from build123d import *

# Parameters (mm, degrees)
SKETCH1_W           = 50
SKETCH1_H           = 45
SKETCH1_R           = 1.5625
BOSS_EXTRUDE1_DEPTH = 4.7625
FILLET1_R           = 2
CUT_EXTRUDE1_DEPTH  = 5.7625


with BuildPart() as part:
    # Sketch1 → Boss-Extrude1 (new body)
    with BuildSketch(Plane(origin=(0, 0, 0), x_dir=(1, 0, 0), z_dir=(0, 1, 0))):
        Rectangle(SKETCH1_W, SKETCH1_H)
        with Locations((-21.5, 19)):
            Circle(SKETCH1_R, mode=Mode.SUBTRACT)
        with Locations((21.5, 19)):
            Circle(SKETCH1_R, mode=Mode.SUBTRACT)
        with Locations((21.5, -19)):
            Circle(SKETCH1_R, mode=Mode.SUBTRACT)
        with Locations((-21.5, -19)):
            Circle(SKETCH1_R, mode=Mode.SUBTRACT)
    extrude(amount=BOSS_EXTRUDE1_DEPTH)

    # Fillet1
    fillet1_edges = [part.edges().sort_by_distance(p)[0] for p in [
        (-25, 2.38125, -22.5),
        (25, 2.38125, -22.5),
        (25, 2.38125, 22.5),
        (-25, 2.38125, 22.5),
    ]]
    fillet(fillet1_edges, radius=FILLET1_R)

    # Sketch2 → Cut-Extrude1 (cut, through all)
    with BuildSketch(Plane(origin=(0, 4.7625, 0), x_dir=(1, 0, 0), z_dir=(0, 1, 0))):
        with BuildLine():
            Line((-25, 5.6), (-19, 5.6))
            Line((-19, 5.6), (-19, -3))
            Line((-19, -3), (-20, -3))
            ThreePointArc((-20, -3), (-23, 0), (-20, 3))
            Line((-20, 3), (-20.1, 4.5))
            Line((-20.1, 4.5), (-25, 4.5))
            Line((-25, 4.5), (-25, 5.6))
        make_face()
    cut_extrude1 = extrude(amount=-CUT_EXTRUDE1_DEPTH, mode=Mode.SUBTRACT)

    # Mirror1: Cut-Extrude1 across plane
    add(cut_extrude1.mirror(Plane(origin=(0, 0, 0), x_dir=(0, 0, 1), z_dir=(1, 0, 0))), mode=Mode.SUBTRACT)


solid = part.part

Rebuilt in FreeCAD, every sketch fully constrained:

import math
import FreeCAD as App
import Part
import Sketcher
from FreeCAD import Vector
Q = App.Units.Quantity


def edges_at(feature, points):
    """Names of the edges that pass closest to the given points."""
    edges = feature.Shape.Edges
    near = lambda p: min(range(len(edges)), key=lambda i: edges[i].distToShape(Part.Vertex(*p))[0])
    return sorted({f"Edge{near(p) + 1}" for p in points})

doc = App.newDocument("Part")
body = doc.addObject("PartDesign::Body", "Body")

sketch1 = body.newObject("Sketcher::SketchObject", "Sketch")
sketch1.AttachmentSupport = (doc.getObject("XZ_Plane"), [""])
sketch1.MapMode = "FlatFace"
sketch1.addGeometry(Part.LineSegment(Vector(-25, -22.5, 0), Vector(-25, 22.5, 0)), False)
sketch1.addGeometry(Part.LineSegment(Vector(-25, 22.5, 0), Vector(25, 22.5, 0)), False)
sketch1.addGeometry(Part.LineSegment(Vector(25, 22.5, 0), Vector(25, -22.5, 0)), False)
sketch1.addGeometry(Part.LineSegment(Vector(25, -22.5, 0), Vector(-25, -22.5, 0)), False)
sketch1.addGeometry(Part.Circle(Vector(-21.5, 19, 0), Vector(0, 0, 1), 1.6), False)
sketch1.addGeometry(Part.Circle(Vector(21.5, 19, 0), Vector(0, 0, 1), 1.6), False)
sketch1.addGeometry(Part.Circle(Vector(-21.5, -19, 0), Vector(0, 0, 1), 1.6), False)
sketch1.addGeometry(Part.Circle(Vector(21.5, -19, 0), Vector(0, 0, 1), 1.6), False)
sketch1.addConstraint(Sketcher.Constraint("Coincident", 0, 2, 1, 1))
sketch1.addConstraint(Sketcher.Constraint("Coincident", 1, 2, 2, 1))
sketch1.addConstraint(Sketcher.Constraint("Coincident", 2, 2, 3, 1))
sketch1.addConstraint(Sketcher.Constraint("Coincident", 3, 2, 0, 1))
sketch1.addConstraint(Sketcher.Constraint("Vertical", 0))
sketch1.addConstraint(Sketcher.Constraint("Horizontal", 1))
sketch1.addConstraint(Sketcher.Constraint("Vertical", 2))
sketch1.addConstraint(Sketcher.Constraint("Horizontal", 3))
sketch1.addConstraint(Sketcher.Constraint("Equal", 4, 5))
sketch1.addConstraint(Sketcher.Constraint("Equal", 5, 6))
sketch1.addConstraint(Sketcher.Constraint("Equal", 6, 7))
sketch1.addConstraint(Sketcher.Constraint("Symmetric", 5, 3, 6, 3, -1, 1))
sketch1.addConstraint(Sketcher.Constraint("Symmetric", 4, 3, 7, 3, -1, 1))
sketch1.addConstraint(Sketcher.Constraint("Symmetric", 0, 2, 2, 2, -1, 1))
sketch1.addConstraint(Sketcher.Constraint("Symmetric", 4, 3, 5, 3, -2))
sketch1.addConstraint(Sketcher.Constraint("DistanceX", 1, 1, 1, 2, Q("50 mm")))
sketch1.addConstraint(Sketcher.Constraint("DistanceY", 0, 1, 0, 2, Q("45 mm")))
sketch1.addConstraint(Sketcher.Constraint("Diameter", 4, Q("3.125 mm")))
sketch1.addConstraint(Sketcher.Constraint("DistanceY", -1, 1, 4, 3, Q("19 mm")))
sketch1.addConstraint(Sketcher.Constraint("DistanceX", 4, 3, 5, 3, Q("43 mm")))
pad1 = body.newObject("PartDesign::Pad", "Pad")
pad1.Profile = sketch1
pad1.Length = 4.7625
pad1.Reversed = True
doc.recompute()

fillet = body.newObject("PartDesign::Fillet", "Fillet")
fillet.Base = (pad1, edges_at(pad1, [
    (-25, 2.381, -22.5),
    (25, 2.381, -22.5),
    (25, 2.381, 22.5),
    (-25, 2.381, 22.5),
]))
fillet.Radius = 2

sketch2 = body.newObject("Sketcher::SketchObject", "Sketch001")
sketch2.AttachmentSupport = (doc.getObject("XZ_Plane"), [""])
sketch2.MapMode = "FlatFace"
sketch2.AttachmentOffset = App.Placement(Vector(0, 0, -4.7625), App.Rotation())
sketch2.addGeometry(Part.LineSegment(Vector(-19, -5.6, 0), Vector(-25, -5.6, 0)), False)
sketch2.addGeometry(Part.LineSegment(Vector(-25, -5.6, 0), Vector(-25, -4.5, 0)), False)
sketch2.addGeometry(Part.LineSegment(Vector(-25, -4.5, 0), Vector(-20.1, -4.5, 0)), False)
sketch2.addGeometry(Part.LineSegment(Vector(-20.1, -4.5, 0), Vector(-20, -3, 0)), False)
sketch2.addGeometry(Part.ArcOfCircle(Part.Circle(Vector(-20, 0, 0), Vector(0, 0, 1), 3), math.radians(90), math.radians(270)), False)
sketch2.addGeometry(Part.LineSegment(Vector(-20, 3, 0), Vector(-19, 3, 0)), False)
sketch2.addGeometry(Part.LineSegment(Vector(-19, 3, 0), Vector(-19, -5.6, 0)), False)
sketch2.addConstraint(Sketcher.Constraint("Coincident", 0, 2, 1, 1))
sketch2.addConstraint(Sketcher.Constraint("Coincident", 1, 2, 2, 1))
sketch2.addConstraint(Sketcher.Constraint("Coincident", 2, 2, 3, 1))
sketch2.addConstraint(Sketcher.Constraint("Coincident", 3, 2, 4, 2))
sketch2.addConstraint(Sketcher.Constraint("Tangent", 4, 1, 5, 1))
sketch2.addConstraint(Sketcher.Constraint("Coincident", 5, 2, 6, 1))
sketch2.addConstraint(Sketcher.Constraint("Coincident", 6, 2, 0, 1))
sketch2.addConstraint(Sketcher.Constraint("Horizontal", 0))
sketch2.addConstraint(Sketcher.Constraint("Vertical", 1))
sketch2.addConstraint(Sketcher.Constraint("Horizontal", 2))
sketch2.addConstraint(Sketcher.Constraint("Horizontal", 5))
sketch2.addConstraint(Sketcher.Constraint("Vertical", 6))
sketch2.addConstraint(Sketcher.Constraint("Symmetric", 3, 2, 4, 1, -1))
sketch2.addConstraint(Sketcher.Constraint("Radius", 4, Q("3 mm")))
sketch2.addConstraint(Sketcher.Constraint("DistanceX", 0, 2, 0, 1, Q("6 mm")))
sketch2.addConstraint(Sketcher.Constraint("DistanceX", 5, 1, 5, 2, Q("1 mm")))
sketch2.addConstraint(Sketcher.Constraint("DistanceX", 2, 1, 2, 2, Q("4.9 mm")))
sketch2.addConstraint(Sketcher.Constraint("DistanceY", 1, 1, 1, 2, Q("1.1 mm")))
sketch2.addConstraint(Sketcher.Constraint("DistanceY", 6, 2, 6, 1, Q("8.6 mm")))
sketch2.addConstraint(Sketcher.Constraint("DistanceX", 4, 3, -1, 1, Q("20 mm")))
pocket1 = body.newObject("PartDesign::Pocket", "Pocket")
pocket1.Profile = sketch2
pocket1.Type = "ThroughAll"
pocket1.Reversed = True
doc.recompute()

mirrored = body.newObject("PartDesign::Mirrored", "Mirrored")
mirrored.Originals = [pocket1]
mirrored.MirrorPlane = (doc.getObject("YZ_Plane"), [""])
body.Tip = mirrored

doc.recompute()
